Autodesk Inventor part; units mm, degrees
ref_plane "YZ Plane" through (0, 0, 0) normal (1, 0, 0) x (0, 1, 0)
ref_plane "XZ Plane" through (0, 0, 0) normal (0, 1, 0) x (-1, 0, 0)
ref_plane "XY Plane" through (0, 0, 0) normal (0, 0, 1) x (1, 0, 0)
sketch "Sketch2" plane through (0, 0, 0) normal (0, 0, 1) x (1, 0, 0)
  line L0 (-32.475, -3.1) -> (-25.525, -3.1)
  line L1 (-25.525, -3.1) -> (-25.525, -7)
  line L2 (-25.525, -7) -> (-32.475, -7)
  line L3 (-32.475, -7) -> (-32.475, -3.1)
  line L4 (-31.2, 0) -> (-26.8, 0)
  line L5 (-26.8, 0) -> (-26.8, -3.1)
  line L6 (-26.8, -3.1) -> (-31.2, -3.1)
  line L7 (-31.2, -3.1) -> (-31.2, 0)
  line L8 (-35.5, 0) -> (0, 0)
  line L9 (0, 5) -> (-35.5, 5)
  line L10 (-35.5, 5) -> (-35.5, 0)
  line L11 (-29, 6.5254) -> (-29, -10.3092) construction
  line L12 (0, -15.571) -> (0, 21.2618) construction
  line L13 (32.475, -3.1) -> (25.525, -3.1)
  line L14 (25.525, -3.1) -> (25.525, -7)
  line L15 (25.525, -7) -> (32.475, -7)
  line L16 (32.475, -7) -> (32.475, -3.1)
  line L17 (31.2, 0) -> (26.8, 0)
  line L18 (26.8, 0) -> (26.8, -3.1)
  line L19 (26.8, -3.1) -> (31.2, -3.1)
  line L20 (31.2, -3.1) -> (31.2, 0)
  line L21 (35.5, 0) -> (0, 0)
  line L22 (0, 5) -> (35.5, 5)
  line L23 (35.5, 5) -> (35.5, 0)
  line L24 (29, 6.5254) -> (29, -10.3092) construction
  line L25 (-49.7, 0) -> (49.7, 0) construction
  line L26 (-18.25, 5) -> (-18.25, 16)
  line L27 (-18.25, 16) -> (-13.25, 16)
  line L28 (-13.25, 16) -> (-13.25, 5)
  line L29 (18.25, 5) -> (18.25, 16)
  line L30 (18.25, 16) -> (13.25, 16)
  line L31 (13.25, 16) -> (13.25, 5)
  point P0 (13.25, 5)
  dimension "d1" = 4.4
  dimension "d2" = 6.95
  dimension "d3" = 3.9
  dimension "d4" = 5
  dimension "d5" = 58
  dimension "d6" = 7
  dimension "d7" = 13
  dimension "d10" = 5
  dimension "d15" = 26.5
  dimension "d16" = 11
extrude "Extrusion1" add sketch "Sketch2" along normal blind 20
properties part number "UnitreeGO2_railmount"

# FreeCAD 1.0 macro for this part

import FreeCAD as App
import Part
import Sketcher

V = App.Vector


def add_polygon(sketch, points):
    """Adds a closed chain of lines whose ends are joined by coincident constraints."""
    first, n = sketch.GeometryCount, len(points)
    for a, b in zip(points, points[1:] + points[:1]):
        sketch.addGeometry(Part.LineSegment(App.Vector(*a, 0), App.Vector(*b, 0)), False)
    for i in range(n):
        sketch.addConstraint(Sketcher.Constraint("Coincident", first + i, 2, first + (i + 1) % n, 1))

doc = App.newDocument("Part")
body = doc.addObject("PartDesign::Body", "Body")

sketch1 = body.newObject("Sketcher::SketchObject", "Sketch")
sketch1.AttachmentSupport = (doc.getObject("XY_Plane"), [""])
sketch1.MapMode = "FlatFace"
add_polygon(sketch1, [(-31.2, -3.1), (-32.475, -3.1), (-32.475, -7), (-25.525, -7), (-25.525, -3.1), (-26.8, -3.1), (-26.8, 0), (26.8, 0), (26.8, -3.1), (25.525, -3.1), (25.525, -7), (32.475, -7), (32.475, -3.1), (31.2, -3.1), (31.2, 0), (35.5, 0), (35.5, 5), (18.25, 5), (18.25, 16), (13.25, 16), (13.25, 5), (-13.25, 5), (-13.25, 16), (-18.25, 16), (-18.25, 5), (-35.5, 5), (-35.5, 0), (-31.2, 0)])
sketch1.addConstraint([
    Sketcher.Constraint("Horizontal", 0),
    Sketcher.Constraint("Vertical", 1),
    Sketcher.Constraint("Horizontal", 2),
    Sketcher.Constraint("Vertical", 3),
    Sketcher.Constraint("Horizontal", 4),
    Sketcher.Constraint("Vertical", 5),
    Sketcher.Constraint("Horizontal", 6),
    Sketcher.Constraint("Vertical", 7),
    Sketcher.Constraint("Horizontal", 8),
    Sketcher.Constraint("Vertical", 9),
    Sketcher.Constraint("Horizontal", 10),
    Sketcher.Constraint("Vertical", 11),
    Sketcher.Constraint("Horizontal", 12),
    Sketcher.Constraint("Vertical", 13),
    Sketcher.Constraint("Horizontal", 14),
    Sketcher.Constraint("Vertical", 15),
    Sketcher.Constraint("Horizontal", 16),
    Sketcher.Constraint("Vertical", 17),
    Sketcher.Constraint("Horizontal", 18),
    Sketcher.Constraint("Vertical", 19),
    Sketcher.Constraint("Horizontal", 20),
    Sketcher.Constraint("Vertical", 21),
    Sketcher.Constraint("Horizontal", 22),
    Sketcher.Constraint("Vertical", 23),
    Sketcher.Constraint("Horizontal", 24),
    Sketcher.Constraint("Vertical", 25),
    Sketcher.Constraint("Horizontal", 26),
    Sketcher.Constraint("Vertical", 27),
    Sketcher.Constraint("Symmetric", 5, 2, 6, 2, -1, 1),
    Sketcher.Constraint("Symmetric", 14, 2, 25, 2, -1, 1),
    Sketcher.Constraint("Symmetric", 3, 2, 8, 2, -2),
    Sketcher.Constraint("Symmetric", 1, 2, 10, 2, -2),
    Sketcher.Constraint("Symmetric", 18, 2, 21, 2, -2),
    Sketcher.Constraint("Symmetric", 16, 2, 23, 2, -2),
    Sketcher.Constraint("Symmetric", 13, 2, 26, 2, -2),
    Sketcher.Constraint("Horizontal", 0, 2, 3, 2),
    Sketcher.Constraint("Horizontal", 8, 2, 11, 2),
    Sketcher.Constraint("Horizontal", 16, 2, 19, 2),
    Sketcher.Constraint("Equal", 0, 4),
    Sketcher.Constraint("Equal", 22, 15),
    Sketcher.Constraint("DistanceX", 18, 2, 18, 1, 5.0),
    Sketcher.Constraint("DistanceY", 17, 1, 17, 2, 11.0),
    Sketcher.Constraint("DistanceX", 20, 2, 20, 1, 26.5),
    Sketcher.Constraint("DistanceY", 1, 2, 1, 1, 3.9),
    Sketcher.Constraint("DistanceY", 1, 2, -1, 1, 7.0),
    Sketcher.Constraint("DistanceX", 2, 2, 10, 2, 58.0),
    Sketcher.Constraint("DistanceX", 2, 1, 2, 2, 6.95),
    Sketcher.Constraint("DistanceX", 7, 2, 12, 2, 4.4),
    Sketcher.Constraint("DistanceX", 14, 1, 14, 2, 4.3),
])
pad1 = body.newObject("PartDesign::Pad", "Pad")
pad1.Profile = sketch1
pad1.Length = 20

doc.recompute()
